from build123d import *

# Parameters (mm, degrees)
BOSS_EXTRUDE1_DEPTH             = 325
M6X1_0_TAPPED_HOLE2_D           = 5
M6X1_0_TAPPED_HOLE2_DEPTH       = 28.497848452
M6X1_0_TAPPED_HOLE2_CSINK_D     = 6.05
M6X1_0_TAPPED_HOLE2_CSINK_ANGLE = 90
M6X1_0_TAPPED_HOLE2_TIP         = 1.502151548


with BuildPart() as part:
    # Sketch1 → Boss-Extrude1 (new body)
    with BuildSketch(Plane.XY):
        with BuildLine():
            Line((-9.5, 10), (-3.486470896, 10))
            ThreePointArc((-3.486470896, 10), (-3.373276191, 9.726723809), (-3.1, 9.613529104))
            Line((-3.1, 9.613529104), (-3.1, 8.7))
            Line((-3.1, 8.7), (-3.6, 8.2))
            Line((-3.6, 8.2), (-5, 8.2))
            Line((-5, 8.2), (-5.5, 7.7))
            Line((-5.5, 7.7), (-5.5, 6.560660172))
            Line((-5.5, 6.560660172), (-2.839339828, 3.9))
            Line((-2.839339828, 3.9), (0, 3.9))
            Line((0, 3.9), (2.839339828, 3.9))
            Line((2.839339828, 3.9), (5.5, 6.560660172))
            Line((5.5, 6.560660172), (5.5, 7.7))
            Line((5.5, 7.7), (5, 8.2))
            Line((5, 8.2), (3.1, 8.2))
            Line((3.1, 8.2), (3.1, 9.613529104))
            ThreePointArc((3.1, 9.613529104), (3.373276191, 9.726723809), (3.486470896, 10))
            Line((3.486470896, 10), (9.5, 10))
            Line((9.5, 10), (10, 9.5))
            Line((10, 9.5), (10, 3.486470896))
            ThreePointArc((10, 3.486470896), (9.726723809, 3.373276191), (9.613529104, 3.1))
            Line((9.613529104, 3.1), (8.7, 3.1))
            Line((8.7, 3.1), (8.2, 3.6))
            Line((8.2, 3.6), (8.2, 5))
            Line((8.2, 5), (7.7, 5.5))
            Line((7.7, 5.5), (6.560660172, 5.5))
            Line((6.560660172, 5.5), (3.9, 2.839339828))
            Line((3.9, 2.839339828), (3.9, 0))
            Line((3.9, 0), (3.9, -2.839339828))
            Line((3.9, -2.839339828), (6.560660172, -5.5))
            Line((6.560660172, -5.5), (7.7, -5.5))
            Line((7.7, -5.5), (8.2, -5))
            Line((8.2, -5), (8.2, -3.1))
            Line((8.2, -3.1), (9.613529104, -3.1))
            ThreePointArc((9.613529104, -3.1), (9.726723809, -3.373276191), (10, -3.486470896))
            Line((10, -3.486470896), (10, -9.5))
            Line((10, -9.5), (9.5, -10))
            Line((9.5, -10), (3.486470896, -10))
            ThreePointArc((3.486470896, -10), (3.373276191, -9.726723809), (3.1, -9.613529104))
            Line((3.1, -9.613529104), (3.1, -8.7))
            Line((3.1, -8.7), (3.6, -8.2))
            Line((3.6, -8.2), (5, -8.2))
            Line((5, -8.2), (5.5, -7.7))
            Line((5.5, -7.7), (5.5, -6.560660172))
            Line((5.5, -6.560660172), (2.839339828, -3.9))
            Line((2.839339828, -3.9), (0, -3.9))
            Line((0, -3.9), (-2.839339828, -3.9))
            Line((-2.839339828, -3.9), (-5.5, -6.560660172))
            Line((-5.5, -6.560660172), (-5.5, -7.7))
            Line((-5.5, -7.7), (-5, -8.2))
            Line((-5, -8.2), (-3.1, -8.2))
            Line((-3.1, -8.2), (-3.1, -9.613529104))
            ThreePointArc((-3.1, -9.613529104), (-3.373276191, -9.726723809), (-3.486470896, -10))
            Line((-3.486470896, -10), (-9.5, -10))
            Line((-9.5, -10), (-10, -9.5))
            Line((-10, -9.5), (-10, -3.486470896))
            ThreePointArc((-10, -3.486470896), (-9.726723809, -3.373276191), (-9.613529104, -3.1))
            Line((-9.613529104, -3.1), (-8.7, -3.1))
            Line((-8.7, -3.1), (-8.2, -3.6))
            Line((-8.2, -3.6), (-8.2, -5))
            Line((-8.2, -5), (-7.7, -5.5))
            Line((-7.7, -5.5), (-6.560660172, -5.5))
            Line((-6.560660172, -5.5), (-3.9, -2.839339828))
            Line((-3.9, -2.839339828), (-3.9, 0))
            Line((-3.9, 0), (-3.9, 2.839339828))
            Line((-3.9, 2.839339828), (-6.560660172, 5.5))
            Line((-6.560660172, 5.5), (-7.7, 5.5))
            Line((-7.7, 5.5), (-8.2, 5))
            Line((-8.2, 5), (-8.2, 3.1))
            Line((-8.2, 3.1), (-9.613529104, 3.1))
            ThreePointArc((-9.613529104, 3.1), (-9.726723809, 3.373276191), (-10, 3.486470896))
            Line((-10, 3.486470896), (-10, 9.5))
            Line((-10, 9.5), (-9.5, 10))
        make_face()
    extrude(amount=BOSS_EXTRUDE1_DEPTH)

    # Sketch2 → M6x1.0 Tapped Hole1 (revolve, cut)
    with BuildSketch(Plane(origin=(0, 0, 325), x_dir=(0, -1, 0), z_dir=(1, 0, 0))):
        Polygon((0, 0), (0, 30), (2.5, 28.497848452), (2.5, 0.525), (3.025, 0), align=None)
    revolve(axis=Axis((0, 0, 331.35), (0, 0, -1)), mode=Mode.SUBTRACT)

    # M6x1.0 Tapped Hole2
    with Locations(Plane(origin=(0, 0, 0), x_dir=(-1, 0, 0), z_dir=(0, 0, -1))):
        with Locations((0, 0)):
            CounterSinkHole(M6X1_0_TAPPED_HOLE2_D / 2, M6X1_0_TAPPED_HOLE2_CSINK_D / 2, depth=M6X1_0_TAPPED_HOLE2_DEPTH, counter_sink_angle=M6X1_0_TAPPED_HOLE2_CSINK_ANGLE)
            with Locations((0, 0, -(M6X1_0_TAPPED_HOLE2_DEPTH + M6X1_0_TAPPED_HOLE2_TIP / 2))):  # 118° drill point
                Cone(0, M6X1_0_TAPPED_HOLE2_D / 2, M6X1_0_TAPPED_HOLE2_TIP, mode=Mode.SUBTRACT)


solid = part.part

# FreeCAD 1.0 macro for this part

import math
import FreeCAD as App
import Part
import Sketcher
Q = App.Units.Quantity

doc = App.newDocument("Part")
params = doc.addObject("Spreadsheet::Sheet", "Params")
for row, (alias, value) in enumerate([
    ("sketch1_width", "1.9 mm"),
    ("sketch1_width2", "1.4 mm"),
    ("pad1_length", "325 mm"),
    ("sketch2_height", "30 mm"),
    ("groove_angle", "360 deg"),
    ("sketch3_diameter", "5 mm"),
    ("hole_diameter", "5 mm"),
    ("hole_depth", "28.497848 mm"),
    ("hole_csink_diameter", "6.05 mm"),
], start=1):
    params.set(f"A{row}", alias)
    params.set(f"B{row}", "=" + value)
    params.setAlias(f"B{row}", alias)

body = doc.addObject("PartDesign::Body", "Body")

sketch1 = body.newObject("Sketcher::SketchObject", "Sketch")
sketch1.AttachmentSupport = (doc.getObject("XY_Plane"), [""])
sketch1.MapMode = "FlatFace"
sketch1.addGeometry(Part.LineSegment(App.Vector(-3.486471, 10, 0), App.Vector(-9.5, 10, 0)), False)
sketch1.addGeometry(Part.LineSegment(App.Vector(-9.5, 10, 0), App.Vector(-10, 9.5, 0)), False)
sketch1.addGeometry(Part.LineSegment(App.Vector(-10, 9.5, 0), App.Vector(-10, 3.486471, 0)), False)
sketch1.addGeometry(Part.ArcOfCircle(Part.Circle(App.Vector(-10, 3.1, 0), App.Vector(0, 0, 1), 0.386471), math.radians(0), math.radians(90)), False)
sketch1.addGeometry(Part.LineSegment(App.Vector(-9.613529, 3.1, 0), App.Vector(-8.2, 3.1, 0)), False)
sketch1.addGeometry(Part.LineSegment(App.Vector(-8.2, 3.1, 0), App.Vector(-8.2, 5, 0)), False)
sketch1.addGeometry(Part.LineSegment(App.Vector(-8.2, 5, 0), App.Vector(-7.7, 5.5, 0)), False)
sketch1.addGeometry(Part.LineSegment(App.Vector(-7.7, 5.5, 0), App.Vector(-6.56066, 5.5, 0)), False)
sketch1.addGeometry(Part.LineSegment(App.Vector(-6.56066, 5.5, 0), App.Vector(-3.9, 2.83934, 0)), False)
sketch1.addGeometry(Part.LineSegment(App.Vector(-3.9, 2.83934, 0), App.Vector(-3.9, -2.83934, 0)), False)
sketch1.addGeometry(Part.LineSegment(App.Vector(-3.9, -2.83934, 0), App.Vector(-6.56066, -5.5, 0)), False)
sketch1.addGeometry(Part.LineSegment(App.Vector(-6.56066, -5.5, 0), App.Vector(-7.7, -5.5, 0)), False)
sketch1.addGeometry(Part.LineSegment(App.Vector(-7.7, -5.5, 0), App.Vector(-8.2, -5, 0)), False)
sketch1.addGeometry(Part.LineSegment(App.Vector(-8.2, -5, 0), App.Vector(-8.2, -3.6, 0)), False)
sketch1.addGeometry(Part.LineSegment(App.Vector(-8.2, -3.6, 0), App.Vector(-8.7, -3.1, 0)), False)
sketch1.addGeometry(Part.LineSegment(App.Vector(-8.7, -3.1, 0), App.Vector(-9.613529, -3.1, 0)), False)
sketch1.addGeometry(Part.ArcOfCircle(Part.Circle(App.Vector(-10, -3.1, 0), App.Vector(0, 0, 1), 0.386471), math.radians(-90), math.radians(0)), False)
sketch1.addGeometry(Part.LineSegment(App.Vector(-10, -3.486471, 0), App.Vector(-10, -9.5, 0)), False)
sketch1.addGeometry(Part.LineSegment(App.Vector(-10, -9.5, 0), App.Vector(-9.5, -10, 0)), False)
sketch1.addGeometry(Part.LineSegment(App.Vector(-9.5, -10, 0), App.Vector(-3.486471, -10, 0)), False)
sketch1.addGeometry(Part.ArcOfCircle(Part.Circle(App.Vector(-3.1, -10, 0), App.Vector(0, 0, 1), 0.386471), math.radians(90), math.radians(180)), False)
sketch1.addGeometry(Part.LineSegment(App.Vector(-3.1, -9.613529, 0), App.Vector(-3.1, -8.2, 0)), False)
sketch1.addGeometry(Part.LineSegment(App.Vector(-3.1, -8.2, 0), App.Vector(-5, -8.2, 0)), False)
sketch1.addGeometry(Part.LineSegment(App.Vector(-5, -8.2, 0), App.Vector(-5.5, -7.7, 0)), False)
sketch1.addGeometry(Part.LineSegment(App.Vector(-5.5, -7.7, 0), App.Vector(-5.5, -6.56066, 0)), False)
sketch1.addGeometry(Part.LineSegment(App.Vector(-5.5, -6.56066, 0), App.Vector(-2.83934, -3.9, 0)), False)
sketch1.addGeometry(Part.LineSegment(App.Vector(-2.83934, -3.9, 0), App.Vector(2.83934, -3.9, 0)), False)
sketch1.addGeometry(Part.LineSegment(App.Vector(2.83934, -3.9, 0), App.Vector(5.5, -6.56066, 0)), False)
sketch1.addGeometry(Part.LineSegment(App.Vector(5.5, -6.56066, 0), App.Vector(5.5, -7.7, 0)), False)
sketch1.addGeometry(Part.LineSegment(App.Vector(5.5, -7.7, 0), App.Vector(5, -8.2, 0)), False)
sketch1.addGeometry(Part.LineSegment(App.Vector(5, -8.2, 0), App.Vector(3.6, -8.2, 0)), False)
sketch1.addGeometry(Part.LineSegment(App.Vector(3.6, -8.2, 0), App.Vector(3.1, -8.7, 0)), False)
sketch1.addGeometry(Part.LineSegment(App.Vector(3.1, -8.7, 0), App.Vector(3.1, -9.613529, 0)), False)
sketch1.addGeometry(Part.ArcOfCircle(Part.Circle(App.Vector(3.1, -10, 0), App.Vector(0, 0, 1), 0.386471), math.radians(0), math.radians(90)), False)
sketch1.addGeometry(Part.LineSegment(App.Vector(3.486471, -10, 0), App.Vector(9.5, -10, 0)), False)
sketch1.addGeometry(Part.LineSegment(App.Vector(9.5, -10, 0), App.Vector(10, -9.5, 0)), False)
sketch1.addGeometry(Part.LineSegment(App.Vector(10, -9.5, 0), App.Vector(10, -3.486471, 0)), False)
sketch1.addGeometry(Part.ArcOfCircle(Part.Circle(App.Vector(10, -3.1, 0), App.Vector(0, 0, 1), 0.386471), math.radians(-180), math.radians(-90)), False)
sketch1.addGeometry(Part.LineSegment(App.Vector(9.613529, -3.1, 0), App.Vector(8.2, -3.1, 0)), False)
sketch1.addGeometry(Part.LineSegment(App.Vector(8.2, -3.1, 0), App.Vector(8.2, -5, 0)), False)
sketch1.addGeometry(Part.LineSegment(App.Vector(8.2, -5, 0), App.Vector(7.7, -5.5, 0)), False)
sketch1.addGeometry(Part.LineSegment(App.Vector(7.7, -5.5, 0), App.Vector(6.56066, -5.5, 0)), False)
sketch1.addGeometry(Part.LineSegment(App.Vector(6.56066, -5.5, 0), App.Vector(3.9, -2.83934, 0)), False)
sketch1.addGeometry(Part.LineSegment(App.Vector(3.9, -2.83934, 0), App.Vector(3.9, 2.83934, 0)), False)
sketch1.addGeometry(Part.LineSegment(App.Vector(3.9, 2.83934, 0), App.Vector(6.56066, 5.5, 0)), False)
sketch1.addGeometry(Part.LineSegment(App.Vector(6.56066, 5.5, 0), App.Vector(7.7, 5.5, 0)), False)
sketch1.addGeometry(Part.LineSegment(App.Vector(7.7, 5.5, 0), App.Vector(8.2, 5, 0)), False)
sketch1.addGeometry(Part.LineSegment(App.Vector(8.2, 5, 0), App.Vector(8.2, 3.6, 0)), False)
sketch1.addGeometry(Part.LineSegment(App.Vector(8.2, 3.6, 0), App.Vector(8.7, 3.1, 0)), False)
sketch1.addGeometry(Part.LineSegment(App.Vector(8.7, 3.1, 0), App.Vector(9.613529, 3.1, 0)), False)
sketch1.addGeometry(Part.ArcOfCircle(Part.Circle(App.Vector(10, 3.1, 0), App.Vector(0, 0, 1), 0.386471), math.radians(90), math.radians(180)), False)
sketch1.addGeometry(Part.LineSegment(App.Vector(10, 3.486471, 0), App.Vector(10, 9.5, 0)), False)
sketch1.addGeometry(Part.LineSegment(App.Vector(10, 9.5, 0), App.Vector(9.5, 10, 0)), False)
sketch1.addGeometry(Part.LineSegment(App.Vector(9.5, 10, 0), App.Vector(3.486471, 10, 0)), False)
sketch1.addGeometry(Part.ArcOfCircle(Part.Circle(App.Vector(3.1, 10, 0), App.Vector(0, 0, 1), 0.386471), math.radians(-90), math.radians(0)), False)
sketch1.addGeometry(Part.LineSegment(App.Vector(3.1, 9.613529, 0), App.Vector(3.1, 8.2, 0)), False)
sketch1.addGeometry(Part.LineSegment(App.Vector(3.1, 8.2, 0), App.Vector(5, 8.2, 0)), False)
sketch1.addGeometry(Part.LineSegment(App.Vector(5, 8.2, 0), App.Vector(5.5, 7.7, 0)), False)
sketch1.addGeometry(Part.LineSegment(App.Vector(5.5, 7.7, 0), App.Vector(5.5, 6.56066, 0)), False)
sketch1.addGeometry(Part.LineSegment(App.Vector(5.5, 6.56066, 0), App.Vector(2.83934, 3.9, 0)), False)
sketch1.addGeometry(Part.LineSegment(App.Vector(2.83934, 3.9, 0), App.Vector(-2.83934, 3.9, 0)), False)
sketch1.addGeometry(Part.LineSegment(App.Vector(-2.83934, 3.9, 0), App.Vector(-5.5, 6.56066, 0)), False)
sketch1.addGeometry(Part.LineSegment(App.Vector(-5.5, 6.56066, 0), App.Vector(-5.5, 7.7, 0)), False)
sketch1.addGeometry(Part.LineSegment(App.Vector(-5.5, 7.7, 0), App.Vector(-5, 8.2, 0)), False)
sketch1.addGeometry(Part.LineSegment(App.Vector(-5, 8.2, 0), App.Vector(-3.6, 8.2, 0)), False)
sketch1.addGeometry(Part.LineSegment(App.Vector(-3.6, 8.2, 0), App.Vector(-3.1, 8.7, 0)), False)
sketch1.addGeometry(Part.LineSegment(App.Vector(-3.1, 8.7, 0), App.Vector(-3.1, 9.613529, 0)), False)
sketch1.addGeometry(Part.ArcOfCircle(Part.Circle(App.Vector(-3.1, 10, 0), App.Vector(0, 0, 1), 0.386471), math.radians(-180), math.radians(-90)), False)
sketch1.addConstraint(Sketcher.Constraint("Coincident", 0, 2, 1, 1))
sketch1.addConstraint(Sketcher.Constraint("Coincident", 1, 2, 2, 1))
sketch1.addConstraint(Sketcher.Constraint("Coincident", 2, 2, 3, 2))
sketch1.addConstraint(Sketcher.Constraint("Coincident", 3, 1, 4, 1))
sketch1.addConstraint(Sketcher.Constraint("Coincident", 4, 2, 5, 1))
sketch1.addConstraint(Sketcher.Constraint("Coincident", 5, 2, 6, 1))
sketch1.addConstraint(Sketcher.Constraint("Coincident", 6, 2, 7, 1))
sketch1.addConstraint(Sketcher.Constraint("Coincident", 7, 2, 8, 1))
sketch1.addConstraint(Sketcher.Constraint("Coincident", 8, 2, 9, 1))
sketch1.addConstraint(Sketcher.Constraint("Coincident", 9, 2, 10, 1))
sketch1.addConstraint(Sketcher.Constraint("Coincident", 10, 2, 11, 1))
sketch1.addConstraint(Sketcher.Constraint("Coincident", 11, 2, 12, 1))
sketch1.addConstraint(Sketcher.Constraint("Coincident", 12, 2, 13, 1))
sketch1.addConstraint(Sketcher.Constraint("Coincident", 13, 2, 14, 1))
sketch1.addConstraint(Sketcher.Constraint("Coincident", 14, 2, 15, 1))
sketch1.addConstraint(Sketcher.Constraint("Coincident", 15, 2, 16, 2))
sketch1.addConstraint(Sketcher.Constraint("Coincident", 16, 1, 17, 1))
sketch1.addConstraint(Sketcher.Constraint("Coincident", 17, 2, 18, 1))
sketch1.addConstraint(Sketcher.Constraint("Coincident", 18, 2, 19, 1))
sketch1.addConstraint(Sketcher.Constraint("Coincident", 19, 2, 20, 2))
sketch1.addConstraint(Sketcher.Constraint("Coincident", 20, 1, 21, 1))
sketch1.addConstraint(Sketcher.Constraint("Coincident", 21, 2, 22, 1))
sketch1.addConstraint(Sketcher.Constraint("Coincident", 22, 2, 23, 1))
sketch1.addConstraint(Sketcher.Constraint("Coincident", 23, 2, 24, 1))
sketch1.addConstraint(Sketcher.Constraint("Coincident", 24, 2, 25, 1))
sketch1.addConstraint(Sketcher.Constraint("Coincident", 25, 2, 26, 1))
sketch1.addConstraint(Sketcher.Constraint("Coincident", 26, 2, 27, 1))
sketch1.addConstraint(Sketcher.Constraint("Coincident", 27, 2, 28, 1))
sketch1.addConstraint(Sketcher.Constraint("Coincident", 28, 2, 29, 1))
sketch1.addConstraint(Sketcher.Constraint("Coincident", 29, 2, 30, 1))
sketch1.addConstraint(Sketcher.Constraint("Coincident", 30, 2, 31, 1))
sketch1.addConstraint(Sketcher.Constraint("Coincident", 31, 2, 32, 1))
sketch1.addConstraint(Sketcher.Constraint("Coincident", 32, 2, 33, 2))
sketch1.addConstraint(Sketcher.Constraint("Coincident", 33, 1, 34, 1))
sketch1.addConstraint(Sketcher.Constraint("Coincident", 34, 2, 35, 1))
sketch1.addConstraint(Sketcher.Constraint("Coincident", 35, 2, 36, 1))
sketch1.addConstraint(Sketcher.Constraint("Coincident", 36, 2, 37, 2))
sketch1.addConstraint(Sketcher.Constraint("Coincident", 37, 1, 38, 1))
sketch1.addConstraint(Sketcher.Constraint("Coincident", 38, 2, 39, 1))
sketch1.addConstraint(Sketcher.Constraint("Coincident", 39, 2, 40, 1))
sketch1.addConstraint(Sketcher.Constraint("Coincident", 40, 2, 41, 1))
sketch1.addConstraint(Sketcher.Constraint("Coincident", 41, 2, 42, 1))
sketch1.addConstraint(Sketcher.Constraint("Coincident", 42, 2, 43, 1))
sketch1.addConstraint(Sketcher.Constraint("Coincident", 43, 2, 44, 1))
sketch1.addConstraint(Sketcher.Constraint("Coincident", 44, 2, 45, 1))
sketch1.addConstraint(Sketcher.Constraint("Coincident", 45, 2, 46, 1))
sketch1.addConstraint(Sketcher.Constraint("Coincident", 46, 2, 47, 1))
sketch1.addConstraint(Sketcher.Constraint("Coincident", 47, 2, 48, 1))
sketch1.addConstraint(Sketcher.Constraint("Coincident", 48, 2, 49, 1))
sketch1.addConstraint(Sketcher.Constraint("Coincident", 49, 2, 50, 2))
sketch1.addConstraint(Sketcher.Constraint("Coincident", 50, 1, 51, 1))
sketch1.addConstraint(Sketcher.Constraint("Coincident", 51, 2, 52, 1))
sketch1.addConstraint(Sketcher.Constraint("Coincident", 52, 2, 53, 1))
sketch1.addConstraint(Sketcher.Constraint("Coincident", 53, 2, 54, 2))
sketch1.addConstraint(Sketcher.Constraint("Coincident", 54, 1, 55, 1))
sketch1.addConstraint(Sketcher.Constraint("Coincident", 55, 2, 56, 1))
sketch1.addConstraint(Sketcher.Constraint("Coincident", 56, 2, 57, 1))
sketch1.addConstraint(Sketcher.Constraint("Coincident", 57, 2, 58, 1))
sketch1.addConstraint(Sketcher.Constraint("Coincident", 58, 2, 59, 1))
sketch1.addConstraint(Sketcher.Constraint("Coincident", 59, 2, 60, 1))
sketch1.addConstraint(Sketcher.Constraint("Coincident", 60, 2, 61, 1))
sketch1.addConstraint(Sketcher.Constraint("Coincident", 61, 2, 62, 1))
sketch1.addConstraint(Sketcher.Constraint("Coincident", 62, 2, 63, 1))
sketch1.addConstraint(Sketcher.Constraint("Coincident", 63, 2, 64, 1))
sketch1.addConstraint(Sketcher.Constraint("Coincident", 64, 2, 65, 1))
sketch1.addConstraint(Sketcher.Constraint("Coincident", 65, 2, 66, 1))
sketch1.addConstraint(Sketcher.Constraint("Coincident", 66, 2, 67, 2))
sketch1.addConstraint(Sketcher.Constraint("Coincident", 67, 1, 0, 1))
sketch1.addConstraint(Sketcher.Constraint("Horizontal", 0))
sketch1.addConstraint(Sketcher.Constraint("Vertical", 2))
sketch1.addConstraint(Sketcher.Constraint("Horizontal", 4))
sketch1.addConstraint(Sketcher.Constraint("Vertical", 5))
sketch1.addConstraint(Sketcher.Constraint("Horizontal", 7))
sketch1.addConstraint(Sketcher.Constraint("Vertical", 9))
sketch1.addConstraint(Sketcher.Constraint("Horizontal", 11))
sketch1.addConstraint(Sketcher.Constraint("Vertical", 13))
sketch1.addConstraint(Sketcher.Constraint("Horizontal", 15))
sketch1.addConstraint(Sketcher.Constraint("Vertical", 17))
sketch1.addConstraint(Sketcher.Constraint("Horizontal", 19))
sketch1.addConstraint(Sketcher.Constraint("Vertical", 21))
sketch1.addConstraint(Sketcher.Constraint("Horizontal", 22))
sketch1.addConstraint(Sketcher.Constraint("Vertical", 24))
sketch1.addConstraint(Sketcher.Constraint("Horizontal", 26))
sketch1.addConstraint(Sketcher.Constraint("Vertical", 28))
sketch1.addConstraint(Sketcher.Constraint("Horizontal", 30))
sketch1.addConstraint(Sketcher.Constraint("Vertical", 32))
sketch1.addConstraint(Sketcher.Constraint("Horizontal", 34))
sketch1.addConstraint(Sketcher.Constraint("Vertical", 36))
sketch1.addConstraint(Sketcher.Constraint("Horizontal", 38))
sketch1.addConstraint(Sketcher.Constraint("Vertical", 39))
sketch1.addConstraint(Sketcher.Constraint("Horizontal", 41))
sketch1.addConstraint(Sketcher.Constraint("Vertical", 43))
sketch1.addConstraint(Sketcher.Constraint("Horizontal", 45))
sketch1.addConstraint(Sketcher.Constraint("Vertical", 47))
sketch1.addConstraint(Sketcher.Constraint("Horizontal", 49))
sketch1.addConstraint(Sketcher.Constraint("Vertical", 51))
sketch1.addConstraint(Sketcher.Constraint("Horizontal", 53))
sketch1.addConstraint(Sketcher.Constraint("Vertical", 55))
sketch1.addConstraint(Sketcher.Constraint("Horizontal", 56))
sketch1.addConstraint(Sketcher.Constraint("Vertical", 58))
sketch1.addConstraint(Sketcher.Constraint("Horizontal", 60))
sketch1.addConstraint(Sketcher.Constraint("Vertical", 62))
sketch1.addConstraint(Sketcher.Constraint("Horizontal", 64))
sketch1.addConstraint(Sketcher.Constraint("Vertical", 66))
sketch1.addConstraint(Sketcher.Constraint("Equal", 3, 16))
sketch1.addConstraint(Sketcher.Constraint("Equal", 16, 20))
sketch1.addConstraint(Sketcher.Constraint("Equal", 20, 33))
sketch1.addConstraint(Sketcher.Constraint("Equal", 33, 37))
sketch1.addConstraint(Sketcher.Constraint("Equal", 37, 50))
sketch1.addConstraint(Sketcher.Constraint("Equal", 50, 54))
sketch1.addConstraint(Sketcher.Constraint("Equal", 54, 67))
sketch1.addConstraint(Sketcher.Constraint("Symmetric", 3, 3, 37, 3, -1, 1))
sketch1.addConstraint(Sketcher.Constraint("Symmetric", 16, 3, 50, 3, -1, 1))
sketch1.addConstraint(Sketcher.Constraint("Symmetric", 20, 3, 54, 3, -1, 1))
sketch1.addConstraint(Sketcher.Constraint("Symmetric", 33, 3, 67, 3, -1, 1))
sketch1.addConstraint(Sketcher.Constraint("Symmetric", 0, 2, 34, 2, -1, 1))
sketch1.addConstraint(Sketcher.Constraint("Symmetric", 1, 2, 35, 2, -1, 1))
sketch1.addConstraint(Sketcher.Constraint("Symmetric", 4, 2, 38, 2, -1, 1))
sketch1.addConstraint(Sketcher.Constraint("Symmetric", 6, 2, 40, 2, -1, 1))
sketch1.addConstraint(Sketcher.Constraint("Symmetric", 8, 2, 42, 2, -1, 1))
sketch1.addConstraint(Sketcher.Constraint("Symmetric", 10, 2, 44, 2, -1, 1))
sketch1.addConstraint(Sketcher.Constraint("Symmetric", 12, 2, 46, 2, -1, 1))
sketch1.addConstraint(Sketcher.Constraint("Symmetric", 14, 2, 48, 2, -1, 1))
sketch1.addConstraint(Sketcher.Constraint("Symmetric", 17, 2, 51, 2, -1, 1))
sketch1.addConstraint(Sketcher.Constraint("Symmetric", 18, 2, 52, 2, -1, 1))
sketch1.addConstraint(Sketcher.Constraint("Symmetric", 21, 2, 55, 2, -1, 1))
sketch1.addConstraint(Sketcher.Constraint("Symmetric", 23, 2, 57, 2, -1, 1))
sketch1.addConstraint(Sketcher.Constraint("Symmetric", 25, 2, 59, 2, -1, 1))
sketch1.addConstraint(Sketcher.Constraint("Symmetric", 27, 2, 61, 2, -1, 1))
sketch1.addConstraint(Sketcher.Constraint("Symmetric", 29, 2, 63, 2, -1, 1))
sketch1.addConstraint(Sketcher.Constraint("Symmetric", 31, 2, 65, 2, -1, 1))
sketch1.addConstraint(Sketcher.Constraint("Symmetric", 20, 3, 33, 3, -2))
sketch1.addConstraint(Sketcher.Constraint("Symmetric", 16, 3, 37, 3, -2))
sketch1.addConstraint(Sketcher.Constraint("Symmetric", 24, 2, 27, 2, -2))
sketch1.addConstraint(Sketcher.Constraint("Symmetric", 22, 2, 29, 2, -2))
sketch1.addConstraint(Sketcher.Constraint("Symmetric", 18, 2, 34, 2, -2))
sketch1.addConstraint(Sketcher.Constraint("Symmetric", 17, 2, 35, 2, -2))
sketch1.addConstraint(Sketcher.Constraint("Symmetric", 12, 2, 39, 2, -2))
sketch1.addConstraint(Sketcher.Constraint("Symmetric", 11, 2, 40, 2, -2))
sketch1.addConstraint(Sketcher.Constraint("Parallel", 1, 6))
sketch1.addConstraint(Sketcher.Constraint("Perpendicular", 6, 8))
sketch1.addConstraint(Sketcher.Constraint("Perpendicular", 8, 10))
sketch1.addConstraint(Sketcher.Constraint("Perpendicular", 10, 12))
sketch1.addConstraint(Sketcher.Constraint("Parallel", 12, 14))
sketch1.addConstraint(Sketcher.Constraint("Parallel", 14, 18))
sketch1.addConstraint(Sketcher.Constraint("Parallel", 18, 23))
sketch1.addConstraint(Sketcher.Constraint("Perpendicular", 23, 25))
sketch1.addConstraint(Sketcher.Constraint("Perpendicular", 25, 27))
sketch1.addConstraint(Sketcher.Constraint("Perpendicular", 27, 29))
sketch1.addConstraint(Sketcher.Constraint("Parallel", 29, 31))
sketch1.addConstraint(Sketcher.Constraint("Perpendicular", 40, 42))
sketch1.addConstraint(Sketcher.Constraint("Perpendicular", 42, 44))
sketch1.addConstraint(Sketcher.Constraint("Perpendicular", 44, 46))
sketch1.addConstraint(Sketcher.Constraint("Parallel", 46, 48))
sketch1.addConstraint(Sketcher.Constraint("Parallel", 52, 57))
sketch1.addConstraint(Sketcher.Constraint("Perpendicular", 57, 59))
sketch1.addConstraint(Sketcher.Constraint("Perpendicular", 59, 61))
sketch1.addConstraint(Sketcher.Constraint("Perpendicular", 61, 63))
sketch1.addConstraint(Sketcher.Constraint("Parallel", 63, 65))
sketch1.addConstraint(Sketcher.Constraint("Horizontal", 67, 3, 0, 2))
sketch1.addConstraint(Sketcher.Constraint("Horizontal", 50, 3, 3, 1))
sketch1.addConstraint(Sketcher.Constraint("Horizontal", 37, 3, 14, 2))
sketch1.addConstraint(Sketcher.Constraint("Horizontal", 9, 2, 42, 2))
sketch1.addConstraint(Sketcher.Constraint("Vertical", 16, 3, 1, 2))
sketch1.addConstraint(Sketcher.Constraint("Vertical", 67, 3, 20, 1))
sketch1.addConstraint(Sketcher.Constraint("Vertical", 54, 3, 31, 2))
sketch1.addConstraint(Sketcher.Constraint("Equal", 53, 2))
sketch1.addConstraint(Sketcher.Constraint("Equal", 56, 5))
sketch1.addConstraint(Sketcher.Constraint("Equal", 60, 9))
sketch1.addConstraint(Sketcher.Constraint("Equal", 64, 13))
sketch1.addConstraint(Sketcher.Constraint("Equal", 38, 21))
sketch1.addConstraint(Sketcher.Constraint("Equal", 45, 24))
sketch1.addConstraint(Sketcher.Constraint("Equal", 1, 6))
sketch1.addConstraint(Sketcher.Constraint("Equal", 12, 14))
sketch1.addConstraint(Sketcher.Constraint("Equal", 18, 23))
sketch1.addConstraint(Sketcher.Constraint("Equal", 10, 25))
sketch1.addConstraint(Sketcher.Constraint("DistanceX", 22, 2, 22, 1, 1.9))
sketch1.addConstraint(Sketcher.Constraint("DistanceX", 30, 2, 30, 1, 1.4))
sketch1.addConstraint(Sketcher.Constraint("DistanceX", 3, 3, -1, 1, 10.0))
sketch1.addConstraint(Sketcher.Constraint("DistanceY", -1, 1, 5, 2, 5.0))
sketch1.addConstraint(Sketcher.Constraint("DistanceX", 4, 2, -1, 1, 8.2))
sketch1.addConstraint(Sketcher.Constraint("DistanceX", 8, 2, -1, 1, 3.9))
sketch1.addConstraint(Sketcher.Constraint("Radius", 3, 0.386471))
sketch1.addConstraint(Sketcher.Constraint("DistanceX", 7, 1, 7, 2, 1.13934))
sketch1.setExpression("Constraints[176]", "Params.sketch1_width")
sketch1.setExpression("Constraints[177]", "Params.sketch1_width2")
pad1 = body.newObject("PartDesign::Pad", "Pad")
pad1.Profile = sketch1
pad1.setExpression("Length", "Params.pad1_length")

sketch2 = body.newObject("Sketcher::SketchObject", "Sketch001")
sketch2.AttachmentSupport = (doc.getObject("YZ_Plane"), [""])
sketch2.MapMode = "FlatFace"
sketch2.addGeometry(Part.LineSegment(App.Vector(0, 295, 0), App.Vector(0, 325, 0)), False)
sketch2.addGeometry(Part.LineSegment(App.Vector(0, 325, 0), App.Vector(-3.025, 325, 0)), False)
sketch2.addGeometry(Part.LineSegment(App.Vector(-3.025, 325, 0), App.Vector(-2.5, 324.475, 0)), False)
sketch2.addGeometry(Part.LineSegment(App.Vector(-2.5, 324.475, 0), App.Vector(-2.5, 296.502152, 0)), False)
sketch2.addGeometry(Part.LineSegment(App.Vector(-2.5, 296.502152, 0), App.Vector(0, 295, 0)), False)
sketch2.addConstraint(Sketcher.Constraint("Coincident", 0, 2, 1, 1))
sketch2.addConstraint(Sketcher.Constraint("Coincident", 1, 2, 2, 1))
sketch2.addConstraint(Sketcher.Constraint("Coincident", 2, 2, 3, 1))
sketch2.addConstraint(Sketcher.Constraint("Coincident", 3, 2, 4, 1))
sketch2.addConstraint(Sketcher.Constraint("Coincident", 4, 2, 0, 1))
sketch2.addConstraint(Sketcher.Constraint("Vertical", 0))
sketch2.addConstraint(Sketcher.Constraint("Horizontal", 1))
sketch2.addConstraint(Sketcher.Constraint("Vertical", 3))
sketch2.addConstraint(Sketcher.Constraint("PointOnObject", 0, 2, -2))
sketch2.addConstraint(Sketcher.Constraint("DistanceY", 0, 1, 0, 2, 30.0))
sketch2.addConstraint(Sketcher.Constraint("Angle", 2, Q("-45 deg")))
sketch2.addConstraint(Sketcher.Constraint("Angle", 4, Q("-31 deg")))
sketch2.addConstraint(Sketcher.Constraint("DistanceY", -1, 1, 0, 2, 325.0))
sketch2.addConstraint(Sketcher.Constraint("DistanceX", 2, 2, -1, 1, 2.5))
sketch2.addConstraint(Sketcher.Constraint("DistanceX", 1, 2, 1, 1, 3.025))
sketch2.setExpression("Constraints[9]", "Params.sketch2_height")
groove = body.newObject("PartDesign::Groove", "Groove")
groove.Profile = sketch2
groove.ReferenceAxis = (sketch2, ["V_Axis"])
groove.setExpression("Angle", "Params.groove_angle")

sketch3 = body.newObject("Sketcher::SketchObject", "Sketch002")
sketch3.AttachmentSupport = (doc.getObject("XY_Plane"), [""])
sketch3.MapMode = "FlatFace"
sketch3.addGeometry(Part.Circle(App.Vector(0, 0, 0), App.Vector(0, 0, 1), 2.5), False)
sketch3.addConstraint(Sketcher.Constraint("Coincident", 0, 3, -1, 1))
sketch3.addConstraint(Sketcher.Constraint("Diameter", 0, 5.0))
sketch3.setExpression("Constraints[1]", "Params.sketch3_diameter")
doc.recompute()
hole = body.newObject("PartDesign::Hole", "Hole")
hole.Profile = sketch3
hole.ThreadType = "None"
hole.setExpression("Diameter", "Params.hole_diameter")
hole.DepthType = "Dimension"
hole.setExpression("Depth", "Params.hole_depth")
hole.DrillPoint = "Angled"
hole.DrillPointAngle = 118
hole.HoleCutType = "Countersink"
hole.setExpression("HoleCutDiameter", "Params.hole_csink_diameter")
hole.HoleCutCountersinkAngle = 90
hole.Reversed = True

doc.recompute()
